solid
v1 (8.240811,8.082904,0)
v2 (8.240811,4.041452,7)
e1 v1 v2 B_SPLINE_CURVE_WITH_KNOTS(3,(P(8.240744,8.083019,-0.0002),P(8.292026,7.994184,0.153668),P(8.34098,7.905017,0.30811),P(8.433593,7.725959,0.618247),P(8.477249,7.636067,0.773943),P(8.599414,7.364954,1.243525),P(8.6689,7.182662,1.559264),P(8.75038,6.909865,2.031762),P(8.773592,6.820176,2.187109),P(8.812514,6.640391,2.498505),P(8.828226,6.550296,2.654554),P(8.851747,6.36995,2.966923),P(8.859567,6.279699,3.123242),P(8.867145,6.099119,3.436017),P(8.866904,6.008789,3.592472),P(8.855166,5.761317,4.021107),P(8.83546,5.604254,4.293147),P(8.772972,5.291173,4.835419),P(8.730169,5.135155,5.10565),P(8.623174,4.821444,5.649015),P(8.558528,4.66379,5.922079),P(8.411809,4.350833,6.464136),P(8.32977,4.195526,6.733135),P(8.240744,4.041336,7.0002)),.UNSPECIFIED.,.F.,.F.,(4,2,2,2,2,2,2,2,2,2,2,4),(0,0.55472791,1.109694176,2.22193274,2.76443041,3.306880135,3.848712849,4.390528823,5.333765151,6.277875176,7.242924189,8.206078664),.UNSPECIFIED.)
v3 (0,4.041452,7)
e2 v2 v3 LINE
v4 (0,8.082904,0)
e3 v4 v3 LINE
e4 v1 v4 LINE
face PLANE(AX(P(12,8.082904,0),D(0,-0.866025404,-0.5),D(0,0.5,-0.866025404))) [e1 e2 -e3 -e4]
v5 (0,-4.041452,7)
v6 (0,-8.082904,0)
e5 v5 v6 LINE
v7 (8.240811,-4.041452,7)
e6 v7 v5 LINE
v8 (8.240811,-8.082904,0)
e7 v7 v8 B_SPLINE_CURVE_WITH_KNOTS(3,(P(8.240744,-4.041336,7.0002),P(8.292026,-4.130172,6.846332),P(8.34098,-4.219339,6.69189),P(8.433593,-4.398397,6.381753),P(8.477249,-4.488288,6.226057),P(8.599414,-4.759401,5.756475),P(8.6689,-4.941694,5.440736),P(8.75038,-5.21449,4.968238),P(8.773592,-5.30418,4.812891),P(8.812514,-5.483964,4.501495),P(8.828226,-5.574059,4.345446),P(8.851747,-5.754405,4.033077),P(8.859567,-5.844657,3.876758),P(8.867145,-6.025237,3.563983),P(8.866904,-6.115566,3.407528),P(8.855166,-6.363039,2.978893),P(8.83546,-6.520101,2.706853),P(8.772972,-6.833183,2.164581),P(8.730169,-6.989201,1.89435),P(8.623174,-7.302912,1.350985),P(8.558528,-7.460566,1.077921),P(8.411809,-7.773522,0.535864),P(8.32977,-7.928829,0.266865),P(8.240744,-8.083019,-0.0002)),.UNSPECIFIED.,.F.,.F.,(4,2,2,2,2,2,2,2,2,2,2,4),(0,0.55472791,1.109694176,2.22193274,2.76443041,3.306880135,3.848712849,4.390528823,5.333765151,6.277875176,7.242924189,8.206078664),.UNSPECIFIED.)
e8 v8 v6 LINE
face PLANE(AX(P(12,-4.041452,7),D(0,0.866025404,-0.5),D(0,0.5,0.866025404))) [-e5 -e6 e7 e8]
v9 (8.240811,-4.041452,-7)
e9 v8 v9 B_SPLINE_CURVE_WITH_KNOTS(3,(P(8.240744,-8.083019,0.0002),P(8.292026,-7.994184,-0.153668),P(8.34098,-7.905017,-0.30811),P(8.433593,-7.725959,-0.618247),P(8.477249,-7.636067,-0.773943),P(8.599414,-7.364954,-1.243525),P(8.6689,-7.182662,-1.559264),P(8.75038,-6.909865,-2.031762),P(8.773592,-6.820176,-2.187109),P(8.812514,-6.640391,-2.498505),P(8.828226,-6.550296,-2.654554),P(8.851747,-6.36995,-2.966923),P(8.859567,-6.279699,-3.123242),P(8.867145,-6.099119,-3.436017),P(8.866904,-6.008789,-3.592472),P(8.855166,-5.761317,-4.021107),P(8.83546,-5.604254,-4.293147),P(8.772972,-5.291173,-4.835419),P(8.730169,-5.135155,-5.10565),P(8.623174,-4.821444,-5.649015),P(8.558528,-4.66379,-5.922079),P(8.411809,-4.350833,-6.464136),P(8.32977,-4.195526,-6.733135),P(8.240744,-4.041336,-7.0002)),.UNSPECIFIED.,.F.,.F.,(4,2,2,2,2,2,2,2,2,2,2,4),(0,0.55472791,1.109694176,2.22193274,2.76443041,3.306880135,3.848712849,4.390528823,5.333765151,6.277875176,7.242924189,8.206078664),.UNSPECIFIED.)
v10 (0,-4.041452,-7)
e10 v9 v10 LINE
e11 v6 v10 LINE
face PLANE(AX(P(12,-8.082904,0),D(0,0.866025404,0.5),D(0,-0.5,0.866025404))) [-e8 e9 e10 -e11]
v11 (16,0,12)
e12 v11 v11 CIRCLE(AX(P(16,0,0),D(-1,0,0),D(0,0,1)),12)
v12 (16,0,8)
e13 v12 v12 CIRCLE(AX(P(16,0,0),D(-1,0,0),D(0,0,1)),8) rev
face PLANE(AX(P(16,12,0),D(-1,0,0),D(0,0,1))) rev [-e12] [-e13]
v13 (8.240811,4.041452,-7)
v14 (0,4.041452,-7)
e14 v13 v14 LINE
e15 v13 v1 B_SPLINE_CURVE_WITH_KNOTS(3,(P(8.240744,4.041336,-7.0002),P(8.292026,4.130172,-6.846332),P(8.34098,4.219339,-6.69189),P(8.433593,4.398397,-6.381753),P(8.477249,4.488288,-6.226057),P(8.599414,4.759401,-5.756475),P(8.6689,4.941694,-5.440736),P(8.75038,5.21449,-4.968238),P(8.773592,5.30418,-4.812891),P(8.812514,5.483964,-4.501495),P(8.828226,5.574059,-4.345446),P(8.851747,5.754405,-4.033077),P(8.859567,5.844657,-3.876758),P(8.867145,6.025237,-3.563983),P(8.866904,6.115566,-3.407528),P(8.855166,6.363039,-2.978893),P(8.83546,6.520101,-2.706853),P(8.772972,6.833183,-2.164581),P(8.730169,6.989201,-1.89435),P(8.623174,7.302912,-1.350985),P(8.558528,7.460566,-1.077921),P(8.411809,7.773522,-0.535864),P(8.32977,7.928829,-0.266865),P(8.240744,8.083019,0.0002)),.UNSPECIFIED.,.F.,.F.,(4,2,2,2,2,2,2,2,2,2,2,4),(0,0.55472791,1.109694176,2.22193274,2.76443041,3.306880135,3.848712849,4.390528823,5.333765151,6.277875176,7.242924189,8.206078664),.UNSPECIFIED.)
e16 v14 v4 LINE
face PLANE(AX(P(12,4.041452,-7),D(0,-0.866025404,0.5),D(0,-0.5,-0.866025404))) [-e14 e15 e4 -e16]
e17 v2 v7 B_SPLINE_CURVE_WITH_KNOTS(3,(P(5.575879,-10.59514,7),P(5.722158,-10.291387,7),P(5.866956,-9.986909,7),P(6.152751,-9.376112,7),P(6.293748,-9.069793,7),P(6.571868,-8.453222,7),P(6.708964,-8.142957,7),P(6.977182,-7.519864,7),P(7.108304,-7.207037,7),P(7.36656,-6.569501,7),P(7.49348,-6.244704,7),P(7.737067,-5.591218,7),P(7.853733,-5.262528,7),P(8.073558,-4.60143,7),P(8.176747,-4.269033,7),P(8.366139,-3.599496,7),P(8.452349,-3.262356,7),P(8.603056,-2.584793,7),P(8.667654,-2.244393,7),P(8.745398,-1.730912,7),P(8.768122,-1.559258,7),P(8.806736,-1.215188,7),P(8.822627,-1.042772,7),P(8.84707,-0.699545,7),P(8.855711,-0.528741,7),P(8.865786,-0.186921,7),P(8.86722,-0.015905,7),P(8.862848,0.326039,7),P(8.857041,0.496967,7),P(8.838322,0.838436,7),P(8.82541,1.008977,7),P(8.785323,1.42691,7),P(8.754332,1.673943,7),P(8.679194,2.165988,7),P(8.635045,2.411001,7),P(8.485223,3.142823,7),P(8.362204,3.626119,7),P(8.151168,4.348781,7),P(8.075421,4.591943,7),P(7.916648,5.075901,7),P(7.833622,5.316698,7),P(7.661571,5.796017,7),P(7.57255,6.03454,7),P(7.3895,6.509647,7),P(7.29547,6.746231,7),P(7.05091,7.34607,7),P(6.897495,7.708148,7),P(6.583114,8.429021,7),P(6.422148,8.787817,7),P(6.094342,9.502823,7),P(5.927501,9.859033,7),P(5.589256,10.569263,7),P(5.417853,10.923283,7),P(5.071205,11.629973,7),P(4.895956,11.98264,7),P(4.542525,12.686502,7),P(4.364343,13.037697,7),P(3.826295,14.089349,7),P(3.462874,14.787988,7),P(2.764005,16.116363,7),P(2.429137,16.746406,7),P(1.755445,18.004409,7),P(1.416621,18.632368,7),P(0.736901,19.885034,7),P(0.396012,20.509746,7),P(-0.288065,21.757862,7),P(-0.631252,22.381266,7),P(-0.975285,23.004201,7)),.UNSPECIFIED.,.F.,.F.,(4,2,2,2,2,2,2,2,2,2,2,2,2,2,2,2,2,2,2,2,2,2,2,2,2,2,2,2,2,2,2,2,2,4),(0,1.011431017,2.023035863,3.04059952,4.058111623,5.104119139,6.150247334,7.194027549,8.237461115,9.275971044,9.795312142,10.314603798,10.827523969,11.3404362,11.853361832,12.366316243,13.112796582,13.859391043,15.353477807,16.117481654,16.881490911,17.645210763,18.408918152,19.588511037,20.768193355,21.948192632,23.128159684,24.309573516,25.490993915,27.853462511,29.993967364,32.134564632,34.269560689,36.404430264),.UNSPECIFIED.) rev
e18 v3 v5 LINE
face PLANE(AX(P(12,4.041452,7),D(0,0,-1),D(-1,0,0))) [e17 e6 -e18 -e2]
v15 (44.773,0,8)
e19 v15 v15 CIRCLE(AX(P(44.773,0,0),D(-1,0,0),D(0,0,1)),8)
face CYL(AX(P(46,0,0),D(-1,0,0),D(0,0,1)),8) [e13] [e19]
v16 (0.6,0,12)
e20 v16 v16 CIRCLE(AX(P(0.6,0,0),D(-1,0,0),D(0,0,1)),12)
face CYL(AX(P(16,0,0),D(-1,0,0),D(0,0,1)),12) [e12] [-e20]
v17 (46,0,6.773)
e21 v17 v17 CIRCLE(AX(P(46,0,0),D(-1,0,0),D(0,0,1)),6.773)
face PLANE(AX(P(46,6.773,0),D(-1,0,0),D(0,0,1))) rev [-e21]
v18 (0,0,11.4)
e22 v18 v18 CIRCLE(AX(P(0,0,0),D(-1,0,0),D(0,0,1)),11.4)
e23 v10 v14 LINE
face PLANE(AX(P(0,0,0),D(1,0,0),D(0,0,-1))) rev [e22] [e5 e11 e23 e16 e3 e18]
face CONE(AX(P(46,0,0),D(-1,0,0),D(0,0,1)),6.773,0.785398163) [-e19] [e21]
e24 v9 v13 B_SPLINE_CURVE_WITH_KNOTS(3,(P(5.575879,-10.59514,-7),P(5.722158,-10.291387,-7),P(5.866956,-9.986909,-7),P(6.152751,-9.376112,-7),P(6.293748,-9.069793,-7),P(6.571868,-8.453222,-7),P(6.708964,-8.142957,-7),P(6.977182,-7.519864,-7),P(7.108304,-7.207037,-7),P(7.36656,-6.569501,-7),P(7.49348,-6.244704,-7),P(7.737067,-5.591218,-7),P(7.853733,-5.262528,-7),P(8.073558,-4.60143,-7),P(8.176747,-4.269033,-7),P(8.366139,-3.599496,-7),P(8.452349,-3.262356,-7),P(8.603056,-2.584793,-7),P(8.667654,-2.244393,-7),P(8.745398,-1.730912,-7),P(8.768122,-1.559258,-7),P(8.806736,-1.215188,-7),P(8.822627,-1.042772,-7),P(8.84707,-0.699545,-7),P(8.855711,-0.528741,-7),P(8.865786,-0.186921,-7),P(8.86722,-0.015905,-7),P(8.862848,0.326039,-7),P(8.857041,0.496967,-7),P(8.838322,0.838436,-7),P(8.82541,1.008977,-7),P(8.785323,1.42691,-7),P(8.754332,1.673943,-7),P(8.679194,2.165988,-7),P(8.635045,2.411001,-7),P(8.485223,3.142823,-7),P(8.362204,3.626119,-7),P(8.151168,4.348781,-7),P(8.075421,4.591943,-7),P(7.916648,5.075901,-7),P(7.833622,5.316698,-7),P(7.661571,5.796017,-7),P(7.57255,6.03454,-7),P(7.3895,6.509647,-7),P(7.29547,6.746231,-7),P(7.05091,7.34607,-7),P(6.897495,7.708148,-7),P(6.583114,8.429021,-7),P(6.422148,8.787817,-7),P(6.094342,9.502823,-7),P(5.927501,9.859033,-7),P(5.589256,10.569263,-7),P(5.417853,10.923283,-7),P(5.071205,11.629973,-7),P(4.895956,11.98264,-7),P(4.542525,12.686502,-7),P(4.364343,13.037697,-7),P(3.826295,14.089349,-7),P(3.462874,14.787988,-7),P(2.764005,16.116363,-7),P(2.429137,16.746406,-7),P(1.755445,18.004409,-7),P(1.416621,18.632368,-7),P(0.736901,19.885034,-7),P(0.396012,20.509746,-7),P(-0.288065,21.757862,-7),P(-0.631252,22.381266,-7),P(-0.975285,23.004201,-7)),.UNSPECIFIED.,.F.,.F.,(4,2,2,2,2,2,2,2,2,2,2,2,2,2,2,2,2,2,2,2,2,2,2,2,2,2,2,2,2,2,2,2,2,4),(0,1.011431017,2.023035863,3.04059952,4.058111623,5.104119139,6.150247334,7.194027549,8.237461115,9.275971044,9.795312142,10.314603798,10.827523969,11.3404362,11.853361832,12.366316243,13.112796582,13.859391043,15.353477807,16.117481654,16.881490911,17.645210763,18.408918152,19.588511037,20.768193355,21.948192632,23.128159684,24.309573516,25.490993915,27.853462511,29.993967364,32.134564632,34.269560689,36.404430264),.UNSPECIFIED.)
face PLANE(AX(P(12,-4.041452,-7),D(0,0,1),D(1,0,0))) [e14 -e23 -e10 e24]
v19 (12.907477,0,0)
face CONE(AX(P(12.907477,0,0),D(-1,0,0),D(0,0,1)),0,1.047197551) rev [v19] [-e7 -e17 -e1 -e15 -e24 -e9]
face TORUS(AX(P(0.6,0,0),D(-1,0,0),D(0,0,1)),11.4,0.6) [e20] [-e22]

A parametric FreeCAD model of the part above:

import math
import FreeCAD as App
import Part
import Sketcher

V = App.Vector
Q = App.Units.Quantity

doc = App.newDocument("Part")
params = doc.addObject("Spreadsheet::Sheet", "Params")
for row, (alias, value) in enumerate([
    ("sketch1_width", "16 mm"),
    ("sketch1_height", "12 mm"),
    ("revolution_angle", "360 deg"),
    ("sketch2_radius", "0.6 mm"),
    ("groove_angle", "360 deg"),
    ("sketch3_width", "30 mm"),
    ("sketch3_height", "8 mm"),
    ("revolution2_angle", "360 deg"),
    ("sketch4_width", "8 mm"),
    ("sketch4_height", "8.5 mm"),
    ("groove2_angle", "360 deg"),
    ("sketch5_diameter", "18 mm"),
    ("pad1_length", "12 mm"),
], start=1):
    params.set(f"A{row}", alias)
    params.set(f"B{row}", "=" + value)
    params.setAlias(f"B{row}", alias)

body = doc.addObject("PartDesign::Body", "Body")

sketch1 = doc.addObject("Sketcher::SketchObject", "Sketch")
body.addObject(sketch1)
sketch1.AttachmentSupport = (doc.XY_Plane, [""])
sketch1.MapMode = "FlatFace"
sketch1.addGeometry([
    Part.LineSegment(V(0, 12, 0), V(0, 0, 0)),
    Part.LineSegment(V(0, 0, 0), V(16, 0, 0)),
    Part.LineSegment(V(16, 0, 0), V(16, 12, 0)),
    Part.LineSegment(V(16, 12, 0), V(0, 12, 0)),
], False)
sketch1.addConstraint([
    Sketcher.Constraint("Coincident", 0, 2, 1, 1),
    Sketcher.Constraint("Coincident", 1, 2, 2, 1),
    Sketcher.Constraint("Coincident", 2, 2, 3, 1),
    Sketcher.Constraint("Coincident", 3, 2, 0, 1),
    Sketcher.Constraint("Vertical", 0),
    Sketcher.Constraint("Horizontal", 1),
    Sketcher.Constraint("Vertical", 2),
    Sketcher.Constraint("Horizontal", 3),
    Sketcher.Constraint("Coincident", 0, 2, -1, 1),
    Sketcher.Constraint("DistanceX", 1, 1, 1, 2, Q("16 mm")),
    Sketcher.Constraint("DistanceY", 0, 2, 0, 1, Q("12 mm")),
])
sketch1.setExpression("Constraints[9]", "Params.sketch1_width")
sketch1.setExpression("Constraints[10]", "Params.sketch1_height")
revolution = doc.addObject("PartDesign::Revolution", "Revolution")
body.addObject(revolution)
revolution.Profile = sketch1
revolution.ReferenceAxis = (sketch1, ["H_Axis"])
revolution.setExpression("Angle", "Params.revolution_angle")

sketch2 = doc.addObject("Sketcher::SketchObject", "Sketch001")
body.addObject(sketch2)
sketch2.AttachmentSupport = (doc.XY_Plane, [""])
sketch2.MapMode = "FlatFace"
sketch2.addGeometry([
    Part.LineSegment(V(0, 12, 0), V(0, 11.4, 0)),
    Part.ArcOfCircle(Part.Circle(V(0.6, 11.4, 0), V(0, 0, 1), 0.6), math.radians(90), math.radians(180)),
    Part.LineSegment(V(0.6, 12, 0), V(0, 12, 0)),
], False)
sketch2.addConstraint([
    Sketcher.Constraint("Tangent", 0, 2, 1, 2),
    Sketcher.Constraint("Tangent", 1, 1, 2, 1),
    Sketcher.Constraint("Coincident", 2, 2, 0, 1),
    Sketcher.Constraint("Vertical", 0),
    Sketcher.Constraint("Horizontal", 2),
    Sketcher.Constraint("PointOnObject", 0, 2, -2),
    Sketcher.Constraint("Radius", 1, Q("0.6 mm")),
    Sketcher.Constraint("DistanceY", -1, 1, 1, 1, Q("12 mm")),
])
sketch2.setExpression("Constraints[6]", "Params.sketch2_radius")
groove = doc.addObject("PartDesign::Groove", "Groove")
body.addObject(groove)
groove.Profile = sketch2
groove.ReferenceAxis = (sketch2, ["H_Axis"])
groove.setExpression("Angle", "Params.groove_angle")

sketch3 = doc.addObject("Sketcher::SketchObject", "Sketch002")
body.addObject(sketch3)
sketch3.AttachmentSupport = (doc.XY_Plane, [""])
sketch3.MapMode = "FlatFace"
sketch3.addGeometry([
    Part.LineSegment(V(16, 8, 0), V(16, 0, 0)),
    Part.LineSegment(V(16, 0, 0), V(46, 0, 0)),
    Part.LineSegment(V(46, 0, 0), V(46, 6.773, 0)),
    Part.LineSegment(V(46, 6.773, 0), V(44.773, 8, 0)),
    Part.LineSegment(V(44.773, 8, 0), V(16, 8, 0)),
], False)
sketch3.addConstraint([
    Sketcher.Constraint("Coincident", 0, 2, 1, 1),
    Sketcher.Constraint("Coincident", 1, 2, 2, 1),
    Sketcher.Constraint("Coincident", 2, 2, 3, 1),
    Sketcher.Constraint("Coincident", 3, 2, 4, 1),
    Sketcher.Constraint("Coincident", 4, 2, 0, 1),
    Sketcher.Constraint("Vertical", 0),
    Sketcher.Constraint("Horizontal", 1),
    Sketcher.Constraint("Vertical", 2),
    Sketcher.Constraint("Horizontal", 4),
    Sketcher.Constraint("PointOnObject", 0, 2, -1),
    Sketcher.Constraint("DistanceX", 1, 1, 1, 2, Q("30 mm")),
    Sketcher.Constraint("DistanceY", 0, 2, 0, 1, Q("8 mm")),
    Sketcher.Constraint("Angle", 3, Q("135 deg")),
    Sketcher.Constraint("DistanceX", -1, 1, 0, 2, Q("16 mm")),
    Sketcher.Constraint("DistanceX", 4, 2, 4, 1, Q("28.773 mm")),
])
sketch3.setExpression("Constraints[10]", "Params.sketch3_width")
sketch3.setExpression("Constraints[11]", "Params.sketch3_height")
revolution2 = doc.addObject("PartDesign::Revolution", "Revolution001")
body.addObject(revolution2)
revolution2.Profile = sketch3
revolution2.ReferenceAxis = (sketch3, ["H_Axis"])
revolution2.setExpression("Angle", "Params.revolution2_angle")

sketch4 = doc.addObject("Sketcher::SketchObject", "Sketch003")
body.addObject(sketch4)
sketch4.AttachmentSupport = (doc.XY_Plane, [""])
sketch4.MapMode = "FlatFace"
sketch4.addGeometry([
    Part.LineSegment(V(0, 8.5, 0), V(0, 0, 0)),
    Part.LineSegment(V(0, 0, 0), V(12.907477, 0, 0)),
    Part.LineSegment(V(12.907477, 0, 0), V(8, 8.5, 0)),
    Part.LineSegment(V(8, 8.5, 0), V(0, 8.5, 0)),
], False)
sketch4.addConstraint([
    Sketcher.Constraint("Coincident", 0, 2, 1, 1),
    Sketcher.Constraint("Coincident", 1, 2, 2, 1),
    Sketcher.Constraint("Coincident", 2, 2, 3, 1),
    Sketcher.Constraint("Coincident", 3, 2, 0, 1),
    Sketcher.Constraint("Vertical", 0),
    Sketcher.Constraint("Horizontal", 1),
    Sketcher.Constraint("Horizontal", 3),
    Sketcher.Constraint("Coincident", 0, 2, -1, 1),
    Sketcher.Constraint("DistanceX", 3, 2, 3, 1, Q("8 mm")),
    Sketcher.Constraint("Angle", 2, Q("120 deg")),
    Sketcher.Constraint("DistanceY", 0, 2, 0, 1, Q("8.5 mm")),
])
sketch4.setExpression("Constraints[8]", "Params.sketch4_width")
sketch4.setExpression("Constraints[10]", "Params.sketch4_height")
groove2 = doc.addObject("PartDesign::Groove", "Groove001")
body.addObject(groove2)
groove2.Profile = sketch4
groove2.ReferenceAxis = (sketch4, ["H_Axis"])
groove2.setExpression("Angle", "Params.groove2_angle")

sketch5 = doc.addObject("Sketcher::SketchObject", "Sketch004")
body.addObject(sketch5)
sketch5.AttachmentSupport = (doc.YZ_Plane, [""])
sketch5.MapMode = "FlatFace"
sketch5.addGeometry([
    Part.Circle(V(0, 0, 0), V(0, 0, 1), 9),
    Part.LineSegment(V(-4.041452, 7, 0), V(4.041452, 7, 0)),
    Part.LineSegment(V(4.041452, 7, 0), V(8.082904, 0, 0)),
    Part.LineSegment(V(8.082904, 0, 0), V(4.041452, -7, 0)),
    Part.LineSegment(V(4.041452, -7, 0), V(-4.041452, -7, 0)),
    Part.LineSegment(V(-4.041452, -7, 0), V(-8.082904, 0, 0)),
    Part.LineSegment(V(-8.082904, 0, 0), V(-4.041452, 7, 0)),
], False)
sketch5.addConstraint([
    Sketcher.Constraint("Coincident", 1, 2, 2, 1),
    Sketcher.Constraint("Coincident", 2, 2, 3, 1),
    Sketcher.Constraint("Coincident", 3, 2, 4, 1),
    Sketcher.Constraint("Coincident", 4, 2, 5, 1),
    Sketcher.Constraint("Coincident", 5, 2, 6, 1),
    Sketcher.Constraint("Coincident", 6, 2, 1, 1),
    Sketcher.Constraint("Horizontal", 1),
    Sketcher.Constraint("Horizontal", 4),
    Sketcher.Constraint("Coincident", 0, 3, -1, 1),
    Sketcher.Constraint("Symmetric", 1, 2, 4, 2, -1, 1),
    Sketcher.Constraint("Symmetric", 2, 2, 5, 2, -1, 1),
    Sketcher.Constraint("PointOnObject", 2, 2, -1),
    Sketcher.Constraint("Parallel", 3, 6),
    Sketcher.Constraint("Vertical", 1, 2, 3, 2),
    Sketcher.Constraint("Diameter", 0, Q("18 mm")),
    Sketcher.Constraint("Angle", 2, Q("-60 deg")),
    Sketcher.Constraint("DistanceY", -1, 1, 1, 2, Q("7 mm")),
    Sketcher.Constraint("DistanceX", 1, 1, 1, 2, Q("8.082904 mm")),
])
sketch5.setExpression("Constraints[14]", "Params.sketch5_diameter")
pad1 = doc.addObject("PartDesign::Pad", "Pad")
body.addObject(pad1)
pad1.Profile = sketch5
pad1.setExpression("Length", "Params.pad1_length")

doc.recompute()
